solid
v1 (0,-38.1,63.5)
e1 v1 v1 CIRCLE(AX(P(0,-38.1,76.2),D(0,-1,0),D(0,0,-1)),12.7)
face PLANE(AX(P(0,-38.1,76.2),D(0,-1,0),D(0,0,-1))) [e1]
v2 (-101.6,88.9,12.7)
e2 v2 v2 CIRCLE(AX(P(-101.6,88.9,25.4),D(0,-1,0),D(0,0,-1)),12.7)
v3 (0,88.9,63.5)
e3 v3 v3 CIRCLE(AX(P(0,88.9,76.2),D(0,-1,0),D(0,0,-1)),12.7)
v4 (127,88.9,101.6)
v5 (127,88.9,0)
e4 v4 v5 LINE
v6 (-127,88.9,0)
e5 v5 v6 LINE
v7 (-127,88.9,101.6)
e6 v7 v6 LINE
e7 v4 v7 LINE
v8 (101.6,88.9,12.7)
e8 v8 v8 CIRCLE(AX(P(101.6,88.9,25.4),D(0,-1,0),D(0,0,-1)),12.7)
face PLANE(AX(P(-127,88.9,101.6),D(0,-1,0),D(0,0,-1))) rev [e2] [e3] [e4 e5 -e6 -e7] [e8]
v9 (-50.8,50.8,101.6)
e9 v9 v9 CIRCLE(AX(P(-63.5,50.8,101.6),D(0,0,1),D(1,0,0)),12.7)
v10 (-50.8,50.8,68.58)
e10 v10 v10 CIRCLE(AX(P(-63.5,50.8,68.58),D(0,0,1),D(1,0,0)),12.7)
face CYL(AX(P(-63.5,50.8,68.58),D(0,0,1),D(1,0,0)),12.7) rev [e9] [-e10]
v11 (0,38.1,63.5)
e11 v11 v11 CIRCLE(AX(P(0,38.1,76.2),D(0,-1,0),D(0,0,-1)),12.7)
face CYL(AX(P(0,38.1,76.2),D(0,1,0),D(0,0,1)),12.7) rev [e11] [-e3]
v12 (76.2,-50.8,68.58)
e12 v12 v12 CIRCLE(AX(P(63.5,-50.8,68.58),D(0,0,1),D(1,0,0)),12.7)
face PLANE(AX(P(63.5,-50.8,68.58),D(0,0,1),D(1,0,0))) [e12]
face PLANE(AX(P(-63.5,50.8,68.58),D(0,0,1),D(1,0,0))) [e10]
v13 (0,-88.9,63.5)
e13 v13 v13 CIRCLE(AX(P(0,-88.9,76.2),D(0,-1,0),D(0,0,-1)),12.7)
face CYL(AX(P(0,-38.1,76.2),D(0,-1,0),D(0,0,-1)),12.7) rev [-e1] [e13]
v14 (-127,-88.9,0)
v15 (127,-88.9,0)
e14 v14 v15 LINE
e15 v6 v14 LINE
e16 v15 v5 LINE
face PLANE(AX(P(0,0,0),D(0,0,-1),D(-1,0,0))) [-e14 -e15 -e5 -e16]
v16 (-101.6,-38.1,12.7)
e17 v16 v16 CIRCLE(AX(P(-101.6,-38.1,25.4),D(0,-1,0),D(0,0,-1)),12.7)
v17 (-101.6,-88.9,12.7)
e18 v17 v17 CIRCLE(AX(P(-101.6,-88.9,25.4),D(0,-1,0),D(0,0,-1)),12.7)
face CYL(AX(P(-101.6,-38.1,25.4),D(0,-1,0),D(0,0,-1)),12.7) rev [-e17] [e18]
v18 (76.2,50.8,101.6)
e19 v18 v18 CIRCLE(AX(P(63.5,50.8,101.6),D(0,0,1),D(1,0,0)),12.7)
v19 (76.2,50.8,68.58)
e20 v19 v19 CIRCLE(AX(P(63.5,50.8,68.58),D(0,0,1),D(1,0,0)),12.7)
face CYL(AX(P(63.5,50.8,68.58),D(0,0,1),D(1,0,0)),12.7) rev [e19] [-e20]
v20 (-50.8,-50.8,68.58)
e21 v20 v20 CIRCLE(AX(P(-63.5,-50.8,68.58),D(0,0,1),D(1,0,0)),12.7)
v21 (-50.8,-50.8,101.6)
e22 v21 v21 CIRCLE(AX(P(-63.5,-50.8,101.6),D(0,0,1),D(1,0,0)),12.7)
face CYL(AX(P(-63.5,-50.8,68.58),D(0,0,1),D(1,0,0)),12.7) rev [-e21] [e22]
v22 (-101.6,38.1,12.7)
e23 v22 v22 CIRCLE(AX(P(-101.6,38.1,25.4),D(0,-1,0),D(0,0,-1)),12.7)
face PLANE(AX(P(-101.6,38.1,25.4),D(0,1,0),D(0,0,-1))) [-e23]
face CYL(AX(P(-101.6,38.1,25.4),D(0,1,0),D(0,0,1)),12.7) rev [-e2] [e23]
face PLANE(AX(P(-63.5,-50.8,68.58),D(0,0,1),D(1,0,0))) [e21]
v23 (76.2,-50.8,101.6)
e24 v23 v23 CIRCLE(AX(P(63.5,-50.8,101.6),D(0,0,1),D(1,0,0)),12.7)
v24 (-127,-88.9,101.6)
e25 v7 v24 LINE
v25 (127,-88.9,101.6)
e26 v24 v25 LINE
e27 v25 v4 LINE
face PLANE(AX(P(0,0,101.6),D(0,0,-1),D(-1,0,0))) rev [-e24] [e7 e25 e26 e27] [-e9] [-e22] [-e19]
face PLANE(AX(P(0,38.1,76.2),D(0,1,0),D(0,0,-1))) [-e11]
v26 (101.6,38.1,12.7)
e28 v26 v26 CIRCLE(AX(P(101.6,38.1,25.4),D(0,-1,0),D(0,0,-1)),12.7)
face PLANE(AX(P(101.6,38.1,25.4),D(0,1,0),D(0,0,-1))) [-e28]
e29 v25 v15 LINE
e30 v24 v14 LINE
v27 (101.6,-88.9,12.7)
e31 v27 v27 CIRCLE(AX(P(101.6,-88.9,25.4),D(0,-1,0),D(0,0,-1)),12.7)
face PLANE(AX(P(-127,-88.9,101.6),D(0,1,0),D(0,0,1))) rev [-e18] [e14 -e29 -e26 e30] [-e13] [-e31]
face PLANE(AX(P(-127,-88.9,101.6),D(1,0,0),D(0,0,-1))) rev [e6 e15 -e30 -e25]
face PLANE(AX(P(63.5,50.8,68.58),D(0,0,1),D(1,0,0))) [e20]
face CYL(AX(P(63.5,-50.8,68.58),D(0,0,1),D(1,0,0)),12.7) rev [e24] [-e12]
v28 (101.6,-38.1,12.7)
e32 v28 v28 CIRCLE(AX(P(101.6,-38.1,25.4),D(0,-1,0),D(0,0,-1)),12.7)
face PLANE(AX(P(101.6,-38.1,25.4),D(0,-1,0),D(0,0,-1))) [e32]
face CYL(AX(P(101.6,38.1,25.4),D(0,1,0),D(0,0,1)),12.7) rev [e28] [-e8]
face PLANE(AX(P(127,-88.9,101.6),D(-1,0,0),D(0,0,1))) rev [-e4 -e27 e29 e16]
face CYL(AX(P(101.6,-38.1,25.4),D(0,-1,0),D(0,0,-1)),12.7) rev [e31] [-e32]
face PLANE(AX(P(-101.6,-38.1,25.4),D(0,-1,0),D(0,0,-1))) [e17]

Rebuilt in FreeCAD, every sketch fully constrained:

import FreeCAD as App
import Part
import Sketcher

V = App.Vector
Q = App.Units.Quantity

doc = App.newDocument("Part")
body = doc.addObject("PartDesign::Body", "Body")

# Sketch on XY plane
sketch1 = body.newObject("Sketcher::SketchObject", "Sketch")
sketch1.AttachmentSupport = (doc.getObject("XY_Plane"), [""])
sketch1.MapMode = "FlatFace"
sketch1.addGeometry(Part.LineSegment(V(-127, 89, 0), V(-127, -89, 0)), False)
sketch1.addGeometry(Part.LineSegment(V(-127, -89, 0), V(127, -89, 0)), False)
sketch1.addGeometry(Part.LineSegment(V(127, -89, 0), V(127, 89, 0)), False)
sketch1.addGeometry(Part.LineSegment(V(127, 89, 0), V(-127, 89, 0)), False)
sketch1.addConstraint(Sketcher.Constraint("Coincident", 0, 2, 1, 1))
sketch1.addConstraint(Sketcher.Constraint("Coincident", 1, 2, 2, 1))
sketch1.addConstraint(Sketcher.Constraint("Coincident", 2, 2, 3, 1))
sketch1.addConstraint(Sketcher.Constraint("Coincident", 3, 2, 0, 1))
sketch1.addConstraint(Sketcher.Constraint("Vertical", 0))
sketch1.addConstraint(Sketcher.Constraint("Horizontal", 1))
sketch1.addConstraint(Sketcher.Constraint("Vertical", 2))
sketch1.addConstraint(Sketcher.Constraint("Horizontal", 3))
sketch1.addConstraint(Sketcher.Constraint("Symmetric", 0, 2, 2, 2, -1, 1))
sketch1.addConstraint(Sketcher.Constraint("DistanceX", 1, 1, 1, 2, Q("10 in")))
sketch1.addConstraint(Sketcher.Constraint("DistanceY", 0, 2, 0, 1, Q("7 in")))
pad1 = body.newObject("PartDesign::Pad", "Pad")
pad1.Profile = sketch1
pad1.Length = Q("4 in")

# Sketch on XZ plane
sketch2 = body.newObject("Sketcher::SketchObject", "Sketch001")
sketch2.AttachmentSupport = (doc.getObject("XZ_Plane"), [""])
sketch2.MapMode = "FlatFace"
sketch2.AttachmentOffset = App.Placement(V(0, 0, 3.5 * 25.4), App.Rotation())
sketch2.addGeometry(Part.Circle(V(-102, 25, 0), V(0, 0, 1), 13), False)
sketch2.addGeometry(Part.Circle(V(102, 25, 0), V(0, 0, 1), 13), False)
sketch2.addConstraint(Sketcher.Constraint("Equal", 0, 1))
sketch2.addConstraint(Sketcher.Constraint("Symmetric", 0, 3, 1, 3, -2))
sketch2.addConstraint(Sketcher.Constraint("Diameter", 0, Q("1 in")))
sketch2.addConstraint(Sketcher.Constraint("DistanceX", 0, 3, -1, 1, Q("4 in")))
sketch2.addConstraint(Sketcher.Constraint("DistanceY", -1, 1, 0, 3, Q("1 in")))
pocket1 = body.newObject("PartDesign::Pocket", "Pocket")
pocket1.Profile = sketch2
pocket1.Length = Q("2 in")
doc.recompute()

mirrored = body.newObject("PartDesign::Mirrored", "Mirrored")
mirrored.Originals = [pocket1]
mirrored.MirrorPlane = (doc.getObject("XZ_Plane"), [""])
body.Tip = mirrored

# Sketch on XZ plane
sketch3 = body.newObject("Sketcher::SketchObject", "Sketch002")
sketch3.AttachmentSupport = (doc.getObject("XZ_Plane"), [""])
sketch3.MapMode = "FlatFace"
sketch3.AttachmentOffset = App.Placement(V(0, 0, 3.5 * 25.4), App.Rotation())
sketch3.addGeometry(Part.Circle(V(0, 76, 0), V(0, 0, 1), 13), False)
sketch3.addConstraint(Sketcher.Constraint("PointOnObject", 0, 3, -2))
sketch3.addConstraint(Sketcher.Constraint("Diameter", 0, Q("1 in")))
sketch3.addConstraint(Sketcher.Constraint("DistanceY", -1, 1, 0, 3, Q("3 in")))
pocket2 = body.newObject("PartDesign::Pocket", "Pocket001")
pocket2.Profile = sketch3
pocket2.Length = Q("2 in")
doc.recompute()

mirrored2 = body.newObject("PartDesign::Mirrored", "Mirrored001")
mirrored2.Originals = [pocket2]
mirrored2.MirrorPlane = (doc.getObject("XZ_Plane"), [""])
body.Tip = mirrored2

# Sketch on XY plane
sketch4 = body.newObject("Sketcher::SketchObject", "Sketch003")
sketch4.AttachmentSupport = (doc.getObject("XY_Plane"), [""])
sketch4.MapMode = "FlatFace"
sketch4.AttachmentOffset = App.Placement(V(0, 0, 4 * 25.4), App.Rotation())
sketch4.addGeometry(Part.Circle(V(64, -51, 0), V(0, 0, 1), 13), False)
sketch4.addGeometry(Part.Circle(V(64, 51, 0), V(0, 0, 1), 13), False)
sketch4.addGeometry(Part.Circle(V(-64, -51, 0), V(0, 0, 1), 13), False)
sketch4.addGeometry(Part.Circle(V(-64, 51, 0), V(0, 0, 1), 13), False)
sketch4.addConstraint(Sketcher.Constraint("Equal", 0, 1))
sketch4.addConstraint(Sketcher.Constraint("Equal", 1, 2))
sketch4.addConstraint(Sketcher.Constraint("Equal", 2, 3))
sketch4.addConstraint(Sketcher.Constraint("Symmetric", 1, 3, 2, 3, -1, 1))
sketch4.addConstraint(Sketcher.Constraint("Symmetric", 0, 3, 3, 3, -1, 1))
sketch4.addConstraint(Sketcher.Constraint("Symmetric", 0, 3, 2, 3, -2))
sketch4.addConstraint(Sketcher.Constraint("Diameter", 0, Q("1 in")))
sketch4.addConstraint(Sketcher.Constraint("DistanceY", 0, 3, -1, 1, Q("2 in")))
sketch4.addConstraint(Sketcher.Constraint("DistanceX", 2, 3, 0, 3, Q("5 in")))
pocket3 = body.newObject("PartDesign::Pocket", "Pocket002")
pocket3.Profile = sketch4
pocket3.Length = Q("1.3 in")

doc.recompute()
